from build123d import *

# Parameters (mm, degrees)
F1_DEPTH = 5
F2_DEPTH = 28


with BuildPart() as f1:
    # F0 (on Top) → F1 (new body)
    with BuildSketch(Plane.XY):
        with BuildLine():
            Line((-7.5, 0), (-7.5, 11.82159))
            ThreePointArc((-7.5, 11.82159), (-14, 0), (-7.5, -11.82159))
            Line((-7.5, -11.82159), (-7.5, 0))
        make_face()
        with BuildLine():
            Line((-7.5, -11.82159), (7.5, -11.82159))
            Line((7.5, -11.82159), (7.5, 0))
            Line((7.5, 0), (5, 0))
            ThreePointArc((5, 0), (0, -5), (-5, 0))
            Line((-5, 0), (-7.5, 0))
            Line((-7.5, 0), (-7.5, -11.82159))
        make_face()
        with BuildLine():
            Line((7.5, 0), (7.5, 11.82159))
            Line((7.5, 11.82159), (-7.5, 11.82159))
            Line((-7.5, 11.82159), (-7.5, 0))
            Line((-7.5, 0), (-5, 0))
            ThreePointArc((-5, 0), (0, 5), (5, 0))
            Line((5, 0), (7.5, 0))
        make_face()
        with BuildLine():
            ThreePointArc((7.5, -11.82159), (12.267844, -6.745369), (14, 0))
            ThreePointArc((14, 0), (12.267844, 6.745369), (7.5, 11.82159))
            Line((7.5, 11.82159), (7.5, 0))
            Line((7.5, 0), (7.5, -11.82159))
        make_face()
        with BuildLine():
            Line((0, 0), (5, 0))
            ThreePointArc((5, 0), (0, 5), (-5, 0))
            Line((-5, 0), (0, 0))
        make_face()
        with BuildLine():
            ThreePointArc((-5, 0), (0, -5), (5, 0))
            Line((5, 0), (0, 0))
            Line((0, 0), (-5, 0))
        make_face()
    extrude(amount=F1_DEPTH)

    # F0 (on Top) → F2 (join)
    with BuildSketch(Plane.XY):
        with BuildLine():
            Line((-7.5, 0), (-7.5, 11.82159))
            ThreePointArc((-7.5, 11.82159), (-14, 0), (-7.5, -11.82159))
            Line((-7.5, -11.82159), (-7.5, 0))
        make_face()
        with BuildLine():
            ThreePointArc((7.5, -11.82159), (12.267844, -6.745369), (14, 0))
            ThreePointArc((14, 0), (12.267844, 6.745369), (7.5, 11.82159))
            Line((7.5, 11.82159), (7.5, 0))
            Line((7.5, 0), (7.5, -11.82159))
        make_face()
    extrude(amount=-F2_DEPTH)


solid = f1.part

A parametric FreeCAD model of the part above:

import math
import FreeCAD as App
import Part
import Sketcher
from FreeCAD import Vector
Q = App.Units.Quantity

doc = App.newDocument("Part")
body = doc.addObject("PartDesign::Body", "Body")

# Sketch on XY plane
sketch1 = body.newObject("Sketcher::SketchObject", "Sketch")
sketch1.AttachmentSupport = (doc.getObject("XY_Plane"), [""])
sketch1.MapMode = "FlatFace"
sketch1.addGeometry([
    Part.ArcOfCircle(Part.Circle(Vector(0, 0, 0), Vector(0, 0, 1), 14), math.radians(122), math.radians(238)),  # 0
    Part.LineSegment(Vector(-8, -12, 0), Vector(8, -12, 0)),  # 1
    Part.ArcOfCircle(Part.Circle(Vector(0, 0, 0), Vector(0, 0, 1), 14), math.radians(-58), math.radians(0)),  # 2
    Part.ArcOfCircle(Part.Circle(Vector(0, 0, 0), Vector(0, 0, 1), 14), math.radians(0), math.radians(58)),  # 3
    Part.LineSegment(Vector(8, 12, 0), Vector(-8, 12, 0)),  # 4
], False)
sketch1.addConstraint([
    Sketcher.Constraint("Coincident", 0, 2, 1, 1),
    Sketcher.Constraint("Coincident", 1, 2, 2, 1),
    Sketcher.Constraint("Tangent", 2, 2, 3, 1),
    Sketcher.Constraint("Coincident", 3, 2, 4, 1),
    Sketcher.Constraint("Coincident", 4, 2, 0, 1),
    Sketcher.Constraint("Horizontal", 1),
    Sketcher.Constraint("Horizontal", 4),
    Sketcher.Constraint("Coincident", 0, 3, -1, 1),
    Sketcher.Constraint("Coincident", 2, 3, -1, 1),
    Sketcher.Constraint("Equal", 0, 2),
    Sketcher.Constraint("Equal", 2, 3),
    Sketcher.Constraint("PointOnObject", 2, 2, -1),
    Sketcher.Constraint("Vertical", 1, 2, 3, 2),
    Sketcher.Constraint("Radius", 0, Q("13.999999 mm")),
    Sketcher.Constraint("DistanceX", 1, 1, 1, 2, Q("15 mm")),
])
pad1 = body.newObject("PartDesign::Pad", "Pad")
pad1.Profile = sketch1
pad1.Length = 5

# Sketch on XY plane
sketch2 = body.newObject("Sketcher::SketchObject", "Sketch001")
sketch2.AttachmentSupport = (doc.getObject("XY_Plane"), [""])
sketch2.MapMode = "FlatFace"
sketch2.addGeometry([
    Part.ArcOfCircle(Part.Circle(Vector(0, 0, 0), Vector(0, 0, 1), 14), math.radians(122), math.radians(238)),  # 0
    Part.LineSegment(Vector(-8, -12, 0), Vector(-8, 12, 0)),  # 1
    Part.ArcOfCircle(Part.Circle(Vector(0, 0, 0), Vector(0, 0, 1), 14), math.radians(-58), math.radians(0)),  # 2
    Part.ArcOfCircle(Part.Circle(Vector(0, 0, 0), Vector(0, 0, 1), 14), math.radians(0), math.radians(58)),  # 3
    Part.LineSegment(Vector(8, 12, 0), Vector(8, -12, 0)),  # 4
], False)
sketch2.addConstraint([
    Sketcher.Constraint("Coincident", 0, 1, 1, 2),
    Sketcher.Constraint("Coincident", 1, 1, 0, 2),
    Sketcher.Constraint("Tangent", 2, 2, 3, 1),
    Sketcher.Constraint("Coincident", 3, 2, 4, 1),
    Sketcher.Constraint("Coincident", 4, 2, 2, 1),
    Sketcher.Constraint("Vertical", 1),
    Sketcher.Constraint("Vertical", 4),
    Sketcher.Constraint("Coincident", 0, 3, -1, 1),
    Sketcher.Constraint("Coincident", 2, 3, -1, 1),
    Sketcher.Constraint("Equal", 0, 2),
    Sketcher.Constraint("Equal", 2, 3),
    Sketcher.Constraint("PointOnObject", 2, 2, -1),
    Sketcher.Constraint("Horizontal", 0, 1, 3, 2),
    Sketcher.Constraint("Radius", 0, Q("13.999999 mm")),
    Sketcher.Constraint("DistanceX", 0, 1, 3, 2, Q("15 mm")),
])
pad2 = body.newObject("PartDesign::Pad", "Pad001")
pad2.Profile = sketch2
pad2.Length = 28
pad2.Reversed = True

doc.recompute()
